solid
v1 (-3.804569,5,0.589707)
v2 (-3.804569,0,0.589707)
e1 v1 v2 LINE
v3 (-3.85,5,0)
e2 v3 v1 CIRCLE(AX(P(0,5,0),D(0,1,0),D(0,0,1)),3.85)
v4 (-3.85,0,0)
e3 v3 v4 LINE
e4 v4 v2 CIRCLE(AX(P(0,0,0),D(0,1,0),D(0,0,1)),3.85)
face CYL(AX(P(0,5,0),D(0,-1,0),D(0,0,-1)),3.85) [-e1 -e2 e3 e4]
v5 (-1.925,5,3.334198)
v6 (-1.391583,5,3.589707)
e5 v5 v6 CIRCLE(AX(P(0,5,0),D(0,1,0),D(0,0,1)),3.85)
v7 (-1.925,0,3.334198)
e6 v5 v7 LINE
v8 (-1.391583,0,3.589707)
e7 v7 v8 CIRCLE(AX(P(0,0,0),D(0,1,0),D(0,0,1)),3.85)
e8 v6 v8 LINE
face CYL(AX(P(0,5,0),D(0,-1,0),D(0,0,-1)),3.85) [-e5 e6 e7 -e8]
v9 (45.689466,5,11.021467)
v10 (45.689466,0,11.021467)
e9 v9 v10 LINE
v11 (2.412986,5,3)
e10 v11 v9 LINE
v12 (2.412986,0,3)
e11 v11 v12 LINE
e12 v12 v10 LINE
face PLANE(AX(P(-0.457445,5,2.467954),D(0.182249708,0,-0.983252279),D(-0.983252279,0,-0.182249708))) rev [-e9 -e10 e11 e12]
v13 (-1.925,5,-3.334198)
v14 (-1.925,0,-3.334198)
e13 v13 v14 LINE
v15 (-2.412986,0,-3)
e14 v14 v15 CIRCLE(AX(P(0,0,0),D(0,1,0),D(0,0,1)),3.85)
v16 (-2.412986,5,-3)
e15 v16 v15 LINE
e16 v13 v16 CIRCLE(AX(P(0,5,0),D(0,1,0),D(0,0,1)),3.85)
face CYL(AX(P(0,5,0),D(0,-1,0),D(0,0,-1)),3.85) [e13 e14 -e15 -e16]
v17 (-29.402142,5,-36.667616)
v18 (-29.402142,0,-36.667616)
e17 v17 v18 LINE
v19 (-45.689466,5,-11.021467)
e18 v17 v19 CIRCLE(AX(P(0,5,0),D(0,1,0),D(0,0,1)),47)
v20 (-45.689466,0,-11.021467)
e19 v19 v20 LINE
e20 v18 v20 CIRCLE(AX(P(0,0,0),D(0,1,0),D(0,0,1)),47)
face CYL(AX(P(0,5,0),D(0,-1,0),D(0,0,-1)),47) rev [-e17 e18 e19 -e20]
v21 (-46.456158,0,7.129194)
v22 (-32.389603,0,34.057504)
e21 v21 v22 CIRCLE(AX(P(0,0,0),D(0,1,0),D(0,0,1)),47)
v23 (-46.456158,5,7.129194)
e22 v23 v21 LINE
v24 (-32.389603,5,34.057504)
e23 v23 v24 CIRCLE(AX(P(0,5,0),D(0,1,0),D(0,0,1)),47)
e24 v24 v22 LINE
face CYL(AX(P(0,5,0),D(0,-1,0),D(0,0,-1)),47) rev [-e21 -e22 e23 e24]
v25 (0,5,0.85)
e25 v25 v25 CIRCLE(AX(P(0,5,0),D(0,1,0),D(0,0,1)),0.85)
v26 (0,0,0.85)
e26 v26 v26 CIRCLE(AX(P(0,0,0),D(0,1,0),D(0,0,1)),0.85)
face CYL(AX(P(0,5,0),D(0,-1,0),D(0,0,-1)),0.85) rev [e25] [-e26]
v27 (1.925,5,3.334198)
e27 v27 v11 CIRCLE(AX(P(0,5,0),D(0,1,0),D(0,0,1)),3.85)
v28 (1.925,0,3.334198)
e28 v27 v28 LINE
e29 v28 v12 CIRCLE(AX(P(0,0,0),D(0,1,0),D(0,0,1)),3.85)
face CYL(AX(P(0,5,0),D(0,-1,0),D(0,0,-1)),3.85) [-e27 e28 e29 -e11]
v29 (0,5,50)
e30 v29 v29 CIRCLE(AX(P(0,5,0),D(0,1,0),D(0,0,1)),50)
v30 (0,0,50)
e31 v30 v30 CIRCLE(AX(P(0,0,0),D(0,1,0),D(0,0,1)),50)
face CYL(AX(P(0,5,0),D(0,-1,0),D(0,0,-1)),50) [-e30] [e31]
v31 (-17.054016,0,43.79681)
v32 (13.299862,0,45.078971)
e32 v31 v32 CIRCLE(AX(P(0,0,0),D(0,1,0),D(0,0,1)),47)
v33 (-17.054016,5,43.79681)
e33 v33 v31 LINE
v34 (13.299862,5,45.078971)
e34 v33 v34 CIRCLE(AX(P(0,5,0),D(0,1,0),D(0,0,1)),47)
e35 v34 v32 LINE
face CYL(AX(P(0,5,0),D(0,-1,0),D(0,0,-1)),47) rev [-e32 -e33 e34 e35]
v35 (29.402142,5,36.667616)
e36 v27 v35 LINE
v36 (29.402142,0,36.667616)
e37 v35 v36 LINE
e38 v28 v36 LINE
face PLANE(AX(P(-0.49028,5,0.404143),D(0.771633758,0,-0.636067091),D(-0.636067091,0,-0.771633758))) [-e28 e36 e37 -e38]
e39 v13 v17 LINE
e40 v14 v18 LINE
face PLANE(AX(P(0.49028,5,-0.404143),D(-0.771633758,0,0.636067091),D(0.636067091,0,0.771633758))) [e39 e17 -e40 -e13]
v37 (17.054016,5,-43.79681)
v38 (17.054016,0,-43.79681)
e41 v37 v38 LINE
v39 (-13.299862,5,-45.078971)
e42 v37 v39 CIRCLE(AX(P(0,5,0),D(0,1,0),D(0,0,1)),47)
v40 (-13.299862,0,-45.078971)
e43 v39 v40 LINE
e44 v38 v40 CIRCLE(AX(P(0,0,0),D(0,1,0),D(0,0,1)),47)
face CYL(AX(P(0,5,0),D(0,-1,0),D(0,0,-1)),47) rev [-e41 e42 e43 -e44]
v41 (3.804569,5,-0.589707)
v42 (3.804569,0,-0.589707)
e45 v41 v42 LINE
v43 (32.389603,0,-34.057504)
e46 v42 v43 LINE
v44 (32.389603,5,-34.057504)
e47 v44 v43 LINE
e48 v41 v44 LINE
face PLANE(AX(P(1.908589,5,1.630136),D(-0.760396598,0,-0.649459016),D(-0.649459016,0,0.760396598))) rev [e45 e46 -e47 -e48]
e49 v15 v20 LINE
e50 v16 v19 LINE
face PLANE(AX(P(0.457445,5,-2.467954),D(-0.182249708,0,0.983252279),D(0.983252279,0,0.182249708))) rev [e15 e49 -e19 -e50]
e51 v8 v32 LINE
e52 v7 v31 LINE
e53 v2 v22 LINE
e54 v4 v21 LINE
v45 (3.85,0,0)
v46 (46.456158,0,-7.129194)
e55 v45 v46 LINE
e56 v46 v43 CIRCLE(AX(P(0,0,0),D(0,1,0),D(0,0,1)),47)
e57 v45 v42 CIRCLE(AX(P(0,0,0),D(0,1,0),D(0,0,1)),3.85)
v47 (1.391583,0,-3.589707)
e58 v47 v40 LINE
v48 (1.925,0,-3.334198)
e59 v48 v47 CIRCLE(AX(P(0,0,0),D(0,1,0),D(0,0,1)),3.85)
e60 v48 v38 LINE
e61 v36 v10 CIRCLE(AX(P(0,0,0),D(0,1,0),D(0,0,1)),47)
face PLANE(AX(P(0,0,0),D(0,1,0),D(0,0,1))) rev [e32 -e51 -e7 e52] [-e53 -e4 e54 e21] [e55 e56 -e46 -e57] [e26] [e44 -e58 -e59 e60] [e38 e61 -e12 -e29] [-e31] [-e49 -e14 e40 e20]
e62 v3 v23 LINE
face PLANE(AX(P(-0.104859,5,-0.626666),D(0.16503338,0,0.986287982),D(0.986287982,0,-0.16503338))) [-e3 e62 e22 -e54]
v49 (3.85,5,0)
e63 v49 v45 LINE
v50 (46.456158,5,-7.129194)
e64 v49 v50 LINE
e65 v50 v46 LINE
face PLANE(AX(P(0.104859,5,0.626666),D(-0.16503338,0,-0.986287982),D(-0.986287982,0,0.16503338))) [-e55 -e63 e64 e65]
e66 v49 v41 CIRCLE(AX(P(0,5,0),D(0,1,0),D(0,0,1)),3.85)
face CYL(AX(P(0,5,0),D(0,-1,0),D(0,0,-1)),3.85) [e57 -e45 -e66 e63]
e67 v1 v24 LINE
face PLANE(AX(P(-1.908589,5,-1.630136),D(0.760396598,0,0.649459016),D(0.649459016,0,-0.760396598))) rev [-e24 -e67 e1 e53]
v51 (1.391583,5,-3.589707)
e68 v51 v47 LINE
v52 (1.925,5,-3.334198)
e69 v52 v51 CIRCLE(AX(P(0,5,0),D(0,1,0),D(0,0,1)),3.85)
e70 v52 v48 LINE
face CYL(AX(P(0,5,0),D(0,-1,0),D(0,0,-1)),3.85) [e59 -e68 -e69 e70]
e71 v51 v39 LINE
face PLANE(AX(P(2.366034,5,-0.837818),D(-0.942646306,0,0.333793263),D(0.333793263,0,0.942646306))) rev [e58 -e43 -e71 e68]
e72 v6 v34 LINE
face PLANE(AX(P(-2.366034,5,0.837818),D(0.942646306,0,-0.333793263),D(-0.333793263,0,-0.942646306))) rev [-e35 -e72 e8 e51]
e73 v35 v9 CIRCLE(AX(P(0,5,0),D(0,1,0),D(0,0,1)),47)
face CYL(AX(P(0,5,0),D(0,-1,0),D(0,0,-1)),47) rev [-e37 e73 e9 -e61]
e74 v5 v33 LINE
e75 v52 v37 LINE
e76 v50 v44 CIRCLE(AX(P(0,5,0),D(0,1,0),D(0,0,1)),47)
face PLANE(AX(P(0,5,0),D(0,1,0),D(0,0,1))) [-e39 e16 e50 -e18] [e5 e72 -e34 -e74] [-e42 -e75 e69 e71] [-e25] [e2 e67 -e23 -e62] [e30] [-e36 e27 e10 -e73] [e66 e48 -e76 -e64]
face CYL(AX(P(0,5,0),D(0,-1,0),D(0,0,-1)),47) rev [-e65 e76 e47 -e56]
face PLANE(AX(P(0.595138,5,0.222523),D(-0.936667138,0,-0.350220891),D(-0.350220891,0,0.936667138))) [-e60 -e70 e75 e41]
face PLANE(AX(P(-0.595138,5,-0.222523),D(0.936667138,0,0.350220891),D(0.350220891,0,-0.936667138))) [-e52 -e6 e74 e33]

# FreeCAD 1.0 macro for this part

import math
import FreeCAD as App
import Part
import Sketcher
Q = App.Units.Quantity

doc = App.newDocument("Part")
body = doc.addObject("PartDesign::Body", "Body")

sketch1 = doc.addObject("Sketcher::SketchObject", "Sketch")
body.addObject(sketch1)
sketch1.AttachmentSupport = (doc.XZ_Plane, [""])
sketch1.MapMode = "FlatFace"
sketch1.addGeometry([
    Part.Circle(App.Vector(0, 0, 0), App.Vector(0, 0, 1), 50),
    Part.ArcOfCircle(Part.Circle(App.Vector(0, 0, 0), App.Vector(0, 0, 1), 47), math.radians(73.56211), math.radians(111.275414)),
    Part.LineSegment(App.Vector(-17.054016, 43.79681, 0), App.Vector(-1.925, 3.334198, 0)),
    Part.ArcOfCircle(Part.Circle(App.Vector(0, 0, 0), App.Vector(0, 0, 1), 3.85), math.radians(111.189286), math.radians(120)),
    Part.LineSegment(App.Vector(-1.391583, 3.589707, 0), App.Vector(13.299862, 45.078971, 0)),
    Part.ArcOfCircle(Part.Circle(App.Vector(0, 0, 0), App.Vector(0, 0, 1), 47), math.radians(133.56211), math.radians(171.275414)),
    Part.LineSegment(App.Vector(-46.456158, 7.129194, 0), App.Vector(-3.85, 0, 0)),
    Part.ArcOfCircle(Part.Circle(App.Vector(0, 0, 0), App.Vector(0, 0, 1), 3.85), math.radians(171.189286), math.radians(180)),
    Part.LineSegment(App.Vector(-3.804569, 0.589707, 0), App.Vector(-32.389603, 34.057504, 0)),
    Part.ArcOfCircle(Part.Circle(App.Vector(0, 0, 0), App.Vector(0, 0, 1), 47), math.radians(-166.43789), math.radians(-128.724586)),
    Part.LineSegment(App.Vector(-29.402142, -36.667616, 0), App.Vector(-1.925, -3.334198, 0)),
    Part.ArcOfCircle(Part.Circle(App.Vector(0, 0, 0), App.Vector(0, 0, 1), 3.85), math.radians(-128.810714), math.radians(-120)),
    Part.LineSegment(App.Vector(-2.412986, -3, 0), App.Vector(-45.689466, -11.021467, 0)),
    Part.ArcOfCircle(Part.Circle(App.Vector(0, 0, 0), App.Vector(0, 0, 1), 47), math.radians(-106.43789), math.radians(-68.724586)),
    Part.LineSegment(App.Vector(17.054016, -43.79681, 0), App.Vector(1.925, -3.334198, 0)),
    Part.ArcOfCircle(Part.Circle(App.Vector(0, 0, 0), App.Vector(0, 0, 1), 3.85), math.radians(-68.810714), math.radians(-60)),
    Part.LineSegment(App.Vector(1.391583, -3.589707, 0), App.Vector(-13.299862, -45.078971, 0)),
    Part.ArcOfCircle(Part.Circle(App.Vector(0, 0, 0), App.Vector(0, 0, 1), 47), math.radians(-46.43789), math.radians(-8.724586)),
    Part.LineSegment(App.Vector(46.456158, -7.129194, 0), App.Vector(3.85, 0, 0)),
    Part.ArcOfCircle(Part.Circle(App.Vector(0, 0, 0), App.Vector(0, 0, 1), 3.85), math.radians(-8.810714), math.radians(0)),
    Part.LineSegment(App.Vector(3.804569, -0.589707, 0), App.Vector(32.389603, -34.057504, 0)),
    Part.ArcOfCircle(Part.Circle(App.Vector(0, 0, 0), App.Vector(0, 0, 1), 47), math.radians(13.56211), math.radians(51.275414)),
    Part.LineSegment(App.Vector(29.402142, 36.667616, 0), App.Vector(1.925, 3.334198, 0)),
    Part.ArcOfCircle(Part.Circle(App.Vector(0, 0, 0), App.Vector(0, 0, 1), 3.85), math.radians(51.189286), math.radians(60)),
    Part.LineSegment(App.Vector(2.412986, 3, 0), App.Vector(45.689466, 11.021467, 0)),
    Part.Circle(App.Vector(0, 0, 0), App.Vector(0, 0, 1), 0.85),
], False)
sketch1.addConstraint([
    Sketcher.Constraint("Coincident", 1, 2, 2, 1),
    Sketcher.Constraint("Coincident", 2, 2, 3, 2),
    Sketcher.Constraint("Coincident", 3, 1, 4, 1),
    Sketcher.Constraint("Coincident", 4, 2, 1, 1),
    Sketcher.Constraint("Coincident", 5, 2, 6, 1),
    Sketcher.Constraint("Coincident", 6, 2, 7, 2),
    Sketcher.Constraint("Coincident", 7, 1, 8, 1),
    Sketcher.Constraint("Coincident", 8, 2, 5, 1),
    Sketcher.Constraint("Coincident", 9, 2, 10, 1),
    Sketcher.Constraint("Coincident", 10, 2, 11, 2),
    Sketcher.Constraint("Coincident", 11, 1, 12, 1),
    Sketcher.Constraint("Coincident", 12, 2, 9, 1),
    Sketcher.Constraint("Coincident", 13, 2, 14, 1),
    Sketcher.Constraint("Coincident", 14, 2, 15, 2),
    Sketcher.Constraint("Coincident", 15, 1, 16, 1),
    Sketcher.Constraint("Coincident", 16, 2, 13, 1),
    Sketcher.Constraint("Coincident", 17, 2, 18, 1),
    Sketcher.Constraint("Coincident", 18, 2, 19, 2),
    Sketcher.Constraint("Coincident", 19, 1, 20, 1),
    Sketcher.Constraint("Coincident", 20, 2, 17, 1),
    Sketcher.Constraint("Coincident", 21, 2, 22, 1),
    Sketcher.Constraint("Coincident", 22, 2, 23, 2),
    Sketcher.Constraint("Coincident", 23, 1, 24, 1),
    Sketcher.Constraint("Coincident", 24, 2, 21, 1),
    Sketcher.Constraint("Coincident", 0, 3, -1, 1),
    Sketcher.Constraint("Coincident", 1, 3, -1, 1),
    Sketcher.Constraint("Coincident", 3, 3, -1, 1),
    Sketcher.Constraint("Coincident", 5, 3, -1, 1),
    Sketcher.Constraint("Coincident", 7, 3, -1, 1),
    Sketcher.Constraint("Coincident", 9, 3, -1, 1),
    Sketcher.Constraint("Coincident", 11, 3, -1, 1),
    Sketcher.Constraint("Coincident", 13, 3, -1, 1),
    Sketcher.Constraint("Coincident", 15, 3, -1, 1),
    Sketcher.Constraint("Coincident", 17, 3, -1, 1),
    Sketcher.Constraint("Coincident", 19, 3, -1, 1),
    Sketcher.Constraint("Coincident", 21, 3, -1, 1),
    Sketcher.Constraint("Coincident", 23, 3, -1, 1),
    Sketcher.Constraint("Coincident", 25, 3, -1, 1),
    Sketcher.Constraint("Equal", 1, 5),
    Sketcher.Constraint("Equal", 3, 7),
    Sketcher.Constraint("Equal", 5, 9),
    Sketcher.Constraint("Equal", 7, 11),
    Sketcher.Constraint("Equal", 9, 13),
    Sketcher.Constraint("Equal", 11, 15),
    Sketcher.Constraint("Equal", 13, 17),
    Sketcher.Constraint("Equal", 15, 19),
    Sketcher.Constraint("Equal", 17, 21),
    Sketcher.Constraint("Equal", 19, 23),
    Sketcher.Constraint("PointOnObject", 6, 2, -1),
    Sketcher.Constraint("PointOnObject", 18, 2, -1),
    Sketcher.Constraint("Parallel", 2, 14),
    Sketcher.Constraint("Parallel", 4, 16),
    Sketcher.Constraint("Parallel", 6, 18),
    Sketcher.Constraint("Parallel", 8, 20),
    Sketcher.Constraint("Parallel", 10, 22),
    Sketcher.Constraint("Parallel", 12, 24),
    Sketcher.Constraint("Horizontal", 10, 2, 14, 2),
    Sketcher.Constraint("Horizontal", 2, 2, 22, 2),
    Sketcher.Constraint("Vertical", 2, 2, 10, 2),
    Sketcher.Constraint("Equal", 2, 6),
    Sketcher.Constraint("Equal", 4, 8),
    Sketcher.Constraint("Equal", 6, 10),
    Sketcher.Constraint("Equal", 8, 12),
    Sketcher.Constraint("Equal", 12, 16),
    Sketcher.Constraint("Equal", 16, 20),
    Sketcher.Constraint("Equal", 20, 24),
    Sketcher.Constraint("Diameter", 0, Q("100 mm")),
    Sketcher.Constraint("Radius", 1, Q("47 mm")),
    Sketcher.Constraint("Diameter", 25, Q("1.7 mm")),
    Sketcher.Constraint("Radius", 3, Q("3.85 mm")),
    Sketcher.Constraint("DistanceY", 11, 1, -1, 1, Q("3 mm")),
    Sketcher.Constraint("DistanceX", 10, 2, 14, 2, Q("3.85 mm")),
    Sketcher.Constraint("DistanceX", 11, 1, 13, 2, Q("19.467002 mm")),
    Sketcher.Constraint("DistanceY", -1, 1, 4, 2, Q("45.078971 mm")),
    Sketcher.Constraint("DistanceX", 7, 1, -1, 1, Q("3.804569 mm")),
    Sketcher.Constraint("DistanceY", 2, 2, 3, 1, Q("0.255509 mm")),
])
pad1 = doc.addObject("PartDesign::Pad", "Pad")
body.addObject(pad1)
pad1.Profile = sketch1
pad1.Length = 5
pad1.Reversed = True

doc.recompute()
